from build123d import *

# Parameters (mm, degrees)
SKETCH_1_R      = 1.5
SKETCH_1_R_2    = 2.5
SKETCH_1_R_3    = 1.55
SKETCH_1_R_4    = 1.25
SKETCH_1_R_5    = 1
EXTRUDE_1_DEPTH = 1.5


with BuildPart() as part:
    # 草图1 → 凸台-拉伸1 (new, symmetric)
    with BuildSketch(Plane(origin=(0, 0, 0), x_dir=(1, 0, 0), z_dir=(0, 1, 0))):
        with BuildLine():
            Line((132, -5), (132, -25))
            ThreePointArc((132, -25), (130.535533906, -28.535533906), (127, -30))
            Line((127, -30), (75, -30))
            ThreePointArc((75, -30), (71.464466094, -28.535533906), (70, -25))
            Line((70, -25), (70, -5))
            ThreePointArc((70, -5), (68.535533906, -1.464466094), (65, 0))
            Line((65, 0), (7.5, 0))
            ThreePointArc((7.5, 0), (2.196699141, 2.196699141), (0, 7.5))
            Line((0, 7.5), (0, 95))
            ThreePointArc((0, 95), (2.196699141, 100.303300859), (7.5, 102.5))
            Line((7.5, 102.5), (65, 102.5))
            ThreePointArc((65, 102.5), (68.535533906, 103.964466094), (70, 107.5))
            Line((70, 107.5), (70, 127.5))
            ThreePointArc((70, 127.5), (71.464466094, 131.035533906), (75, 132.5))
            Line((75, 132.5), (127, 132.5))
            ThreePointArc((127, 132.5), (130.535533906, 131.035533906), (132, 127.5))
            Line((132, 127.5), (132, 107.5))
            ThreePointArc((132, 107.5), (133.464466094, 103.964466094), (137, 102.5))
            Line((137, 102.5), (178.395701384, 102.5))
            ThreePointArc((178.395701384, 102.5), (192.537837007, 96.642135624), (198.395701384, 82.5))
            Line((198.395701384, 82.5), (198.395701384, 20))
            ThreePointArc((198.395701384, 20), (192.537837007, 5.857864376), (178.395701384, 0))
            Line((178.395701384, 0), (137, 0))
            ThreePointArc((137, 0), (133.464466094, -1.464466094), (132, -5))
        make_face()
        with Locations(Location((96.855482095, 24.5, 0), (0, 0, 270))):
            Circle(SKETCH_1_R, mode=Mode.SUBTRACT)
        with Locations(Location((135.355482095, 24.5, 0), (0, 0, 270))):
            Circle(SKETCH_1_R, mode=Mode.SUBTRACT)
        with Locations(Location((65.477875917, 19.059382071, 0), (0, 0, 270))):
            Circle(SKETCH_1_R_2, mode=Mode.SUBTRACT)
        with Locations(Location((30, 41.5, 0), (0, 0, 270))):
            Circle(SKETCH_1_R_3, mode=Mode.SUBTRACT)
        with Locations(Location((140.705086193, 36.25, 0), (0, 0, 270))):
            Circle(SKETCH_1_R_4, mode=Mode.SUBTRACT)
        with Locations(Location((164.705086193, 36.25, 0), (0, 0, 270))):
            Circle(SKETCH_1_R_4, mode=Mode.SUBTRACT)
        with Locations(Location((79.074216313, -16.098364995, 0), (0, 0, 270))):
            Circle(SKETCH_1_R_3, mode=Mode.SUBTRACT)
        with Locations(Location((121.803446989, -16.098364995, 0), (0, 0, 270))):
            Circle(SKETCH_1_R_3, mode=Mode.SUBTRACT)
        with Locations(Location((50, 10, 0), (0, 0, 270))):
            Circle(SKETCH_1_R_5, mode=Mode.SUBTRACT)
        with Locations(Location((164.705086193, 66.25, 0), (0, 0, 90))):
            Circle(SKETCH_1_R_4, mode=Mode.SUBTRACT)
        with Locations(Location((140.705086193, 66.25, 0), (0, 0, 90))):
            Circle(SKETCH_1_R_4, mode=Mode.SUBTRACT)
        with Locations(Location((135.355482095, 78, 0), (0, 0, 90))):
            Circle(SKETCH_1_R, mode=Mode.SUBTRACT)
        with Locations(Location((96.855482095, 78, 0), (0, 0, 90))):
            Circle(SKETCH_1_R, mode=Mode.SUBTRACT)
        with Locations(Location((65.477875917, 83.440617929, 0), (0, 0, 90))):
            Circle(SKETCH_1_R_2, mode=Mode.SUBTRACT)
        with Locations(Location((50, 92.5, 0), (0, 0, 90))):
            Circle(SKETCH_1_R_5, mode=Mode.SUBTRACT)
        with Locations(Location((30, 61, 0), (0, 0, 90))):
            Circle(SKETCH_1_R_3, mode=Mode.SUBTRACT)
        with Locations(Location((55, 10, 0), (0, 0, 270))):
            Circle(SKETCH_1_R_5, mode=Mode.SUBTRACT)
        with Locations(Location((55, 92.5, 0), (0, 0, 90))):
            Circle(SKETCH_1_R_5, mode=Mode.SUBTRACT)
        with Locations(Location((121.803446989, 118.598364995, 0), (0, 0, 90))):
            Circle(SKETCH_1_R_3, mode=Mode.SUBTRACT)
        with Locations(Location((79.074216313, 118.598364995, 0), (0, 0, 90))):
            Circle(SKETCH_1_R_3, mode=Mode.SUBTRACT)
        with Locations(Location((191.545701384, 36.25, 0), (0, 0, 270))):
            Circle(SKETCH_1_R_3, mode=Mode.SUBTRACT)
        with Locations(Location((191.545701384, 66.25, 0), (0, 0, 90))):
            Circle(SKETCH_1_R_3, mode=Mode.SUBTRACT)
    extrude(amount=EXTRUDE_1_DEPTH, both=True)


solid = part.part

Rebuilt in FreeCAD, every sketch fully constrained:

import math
import FreeCAD as App
import Part
import Sketcher

doc = App.newDocument("Part")
params = doc.addObject("Spreadsheet::Sheet", "Params")
for row, (alias, value) in enumerate([
    ("sketch1_diameter", "3 mm"),
    ("sketch1_diameter2", "2 mm"),
    ("sketch1_diameter3", "5 mm"),
    ("sketch1_radius", "5 mm"),
    ("sketch1_radius2", "20 mm"),
    ("pad1_length", "3 mm"),
], start=1):
    params.set(f"A{row}", alias)
    params.set(f"B{row}", "=" + value)
    params.setAlias(f"B{row}", alias)

body = doc.addObject("PartDesign::Body", "Body")

sketch1 = body.newObject("Sketcher::SketchObject", "Sketch")
sketch1.AttachmentSupport = (doc.getObject("XZ_Plane"), [""])
sketch1.MapMode = "FlatFace"
sketch1.addGeometry(Part.LineSegment(App.Vector(132, 25, 0), App.Vector(132, 5, 0)), False)
sketch1.addGeometry(Part.ArcOfCircle(Part.Circle(App.Vector(137, 5, 0), App.Vector(0, 0, 1), 5), math.radians(180), math.radians(270)), False)
sketch1.addGeometry(Part.LineSegment(App.Vector(137, 0, 0), App.Vector(178.395701, 0, 0)), False)
sketch1.addGeometry(Part.ArcOfCircle(Part.Circle(App.Vector(178.395701, -20, 0), App.Vector(0, 0, 1), 20), math.radians(0), math.radians(90)), False)
sketch1.addGeometry(Part.LineSegment(App.Vector(198.395701, -20, 0), App.Vector(198.395701, -82.5, 0)), False)
sketch1.addGeometry(Part.ArcOfCircle(Part.Circle(App.Vector(178.395701, -82.5, 0), App.Vector(0, 0, 1), 20), math.radians(-90), math.radians(0)), False)
sketch1.addGeometry(Part.LineSegment(App.Vector(178.395701, -102.5, 0), App.Vector(137, -102.5, 0)), False)
sketch1.addGeometry(Part.ArcOfCircle(Part.Circle(App.Vector(137, -107.5, 0), App.Vector(0, 0, 1), 5), math.radians(90), math.radians(180)), False)
sketch1.addGeometry(Part.LineSegment(App.Vector(132, -107.5, 0), App.Vector(132, -127.5, 0)), False)
sketch1.addGeometry(Part.ArcOfCircle(Part.Circle(App.Vector(127, -127.5, 0), App.Vector(0, 0, 1), 5), math.radians(-90), math.radians(0)), False)
sketch1.addGeometry(Part.LineSegment(App.Vector(127, -132.5, 0), App.Vector(75, -132.5, 0)), False)
sketch1.addGeometry(Part.ArcOfCircle(Part.Circle(App.Vector(75, -127.5, 0), App.Vector(0, 0, 1), 5), math.radians(180), math.radians(270)), False)
sketch1.addGeometry(Part.LineSegment(App.Vector(70, -127.5, 0), App.Vector(70, -107.5, 0)), False)
sketch1.addGeometry(Part.ArcOfCircle(Part.Circle(App.Vector(65, -107.5, 0), App.Vector(0, 0, 1), 5), math.radians(0), math.radians(90)), False)
sketch1.addGeometry(Part.LineSegment(App.Vector(65, -102.5, 0), App.Vector(7.5, -102.5, 0)), False)
sketch1.addGeometry(Part.ArcOfCircle(Part.Circle(App.Vector(7.5, -95, 0), App.Vector(0, 0, 1), 7.5), math.radians(180), math.radians(270)), False)
sketch1.addGeometry(Part.LineSegment(App.Vector(0, -95, 0), App.Vector(0, -7.5, 0)), False)
sketch1.addGeometry(Part.ArcOfCircle(Part.Circle(App.Vector(7.5, -7.5, 0), App.Vector(0, 0, 1), 7.5), math.radians(90), math.radians(180)), False)
sketch1.addGeometry(Part.LineSegment(App.Vector(7.5, 0, 0), App.Vector(65, 0, 0)), False)
sketch1.addGeometry(Part.ArcOfCircle(Part.Circle(App.Vector(65, 5, 0), App.Vector(0, 0, 1), 5), math.radians(-90), math.radians(0)), False)
sketch1.addGeometry(Part.LineSegment(App.Vector(70, 5, 0), App.Vector(70, 25, 0)), False)
sketch1.addGeometry(Part.ArcOfCircle(Part.Circle(App.Vector(75, 25, 0), App.Vector(0, 0, 1), 5), math.radians(90), math.radians(180)), False)
sketch1.addGeometry(Part.LineSegment(App.Vector(75, 30, 0), App.Vector(127, 30, 0)), False)
sketch1.addGeometry(Part.ArcOfCircle(Part.Circle(App.Vector(127, 25, 0), App.Vector(0, 0, 1), 5), math.radians(0), math.radians(90)), False)
sketch1.addGeometry(Part.Circle(App.Vector(121.803447, 16.098365, 0), App.Vector(0, 0, 1), 1.55), False)
sketch1.addGeometry(Part.Circle(App.Vector(191.545701, -36.25, 0), App.Vector(0, 0, 1), 1.55), False)
sketch1.addGeometry(Part.Circle(App.Vector(164.705086, -36.25, 0), App.Vector(0, 0, 1), 1.25), False)
sketch1.addGeometry(Part.Circle(App.Vector(135.355482, -24.5, 0), App.Vector(0, 0, 1), 1.5), False)
sketch1.addGeometry(Part.Circle(App.Vector(140.705086, -36.25, 0), App.Vector(0, 0, 1), 1.25), False)
sketch1.addGeometry(Part.Circle(App.Vector(79.074216, 16.098365, 0), App.Vector(0, 0, 1), 1.55), False)
sketch1.addGeometry(Part.Circle(App.Vector(55, -10, 0), App.Vector(0, 0, 1), 1), False)
sketch1.addGeometry(Part.Circle(App.Vector(50, -10, 0), App.Vector(0, 0, 1), 1), False)
sketch1.addGeometry(Part.Circle(App.Vector(96.855482, -24.5, 0), App.Vector(0, 0, 1), 1.5), False)
sketch1.addGeometry(Part.Circle(App.Vector(65.477876, -19.059382, 0), App.Vector(0, 0, 1), 2.5), False)
sketch1.addGeometry(Part.Circle(App.Vector(30, -41.5, 0), App.Vector(0, 0, 1), 1.55), False)
sketch1.addGeometry(Part.Circle(App.Vector(191.545701, -66.25, 0), App.Vector(0, 0, 1), 1.55), False)
sketch1.addGeometry(Part.Circle(App.Vector(164.705086, -66.25, 0), App.Vector(0, 0, 1), 1.25), False)
sketch1.addGeometry(Part.Circle(App.Vector(140.705086, -66.25, 0), App.Vector(0, 0, 1), 1.25), False)
sketch1.addGeometry(Part.Circle(App.Vector(135.355482, -78, 0), App.Vector(0, 0, 1), 1.5), False)
sketch1.addGeometry(Part.Circle(App.Vector(121.803447, -118.598365, 0), App.Vector(0, 0, 1), 1.55), False)
sketch1.addGeometry(Part.Circle(App.Vector(96.855482, -78, 0), App.Vector(0, 0, 1), 1.5), False)
sketch1.addGeometry(Part.Circle(App.Vector(30, -61, 0), App.Vector(0, 0, 1), 1.55), False)
sketch1.addGeometry(Part.Circle(App.Vector(65.477876, -83.440618, 0), App.Vector(0, 0, 1), 2.5), False)
sketch1.addGeometry(Part.Circle(App.Vector(79.074216, -118.598365, 0), App.Vector(0, 0, 1), 1.55), False)
sketch1.addGeometry(Part.Circle(App.Vector(55, -92.5, 0), App.Vector(0, 0, 1), 1), False)
sketch1.addGeometry(Part.Circle(App.Vector(50, -92.5, 0), App.Vector(0, 0, 1), 1), False)
sketch1.addConstraint(Sketcher.Constraint("Tangent", 0, 2, 1, 1))
sketch1.addConstraint(Sketcher.Constraint("Tangent", 1, 2, 2, 1))
sketch1.addConstraint(Sketcher.Constraint("Tangent", 2, 2, 3, 2))
sketch1.addConstraint(Sketcher.Constraint("Tangent", 3, 1, 4, 1))
sketch1.addConstraint(Sketcher.Constraint("Tangent", 4, 2, 5, 2))
sketch1.addConstraint(Sketcher.Constraint("Tangent", 5, 1, 6, 1))
sketch1.addConstraint(Sketcher.Constraint("Tangent", 6, 2, 7, 1))
sketch1.addConstraint(Sketcher.Constraint("Tangent", 7, 2, 8, 1))
sketch1.addConstraint(Sketcher.Constraint("Tangent", 8, 2, 9, 2))
sketch1.addConstraint(Sketcher.Constraint("Tangent", 9, 1, 10, 1))
sketch1.addConstraint(Sketcher.Constraint("Tangent", 10, 2, 11, 2))
sketch1.addConstraint(Sketcher.Constraint("Tangent", 11, 1, 12, 1))
sketch1.addConstraint(Sketcher.Constraint("Tangent", 12, 2, 13, 1))
sketch1.addConstraint(Sketcher.Constraint("Tangent", 13, 2, 14, 1))
sketch1.addConstraint(Sketcher.Constraint("Tangent", 14, 2, 15, 2))
sketch1.addConstraint(Sketcher.Constraint("Tangent", 15, 1, 16, 1))
sketch1.addConstraint(Sketcher.Constraint("Tangent", 16, 2, 17, 2))
sketch1.addConstraint(Sketcher.Constraint("Tangent", 17, 1, 18, 1))
sketch1.addConstraint(Sketcher.Constraint("Tangent", 18, 2, 19, 1))
sketch1.addConstraint(Sketcher.Constraint("Tangent", 19, 2, 20, 1))
sketch1.addConstraint(Sketcher.Constraint("Tangent", 20, 2, 21, 2))
sketch1.addConstraint(Sketcher.Constraint("Tangent", 21, 1, 22, 1))
sketch1.addConstraint(Sketcher.Constraint("Tangent", 22, 2, 23, 2))
sketch1.addConstraint(Sketcher.Constraint("Tangent", 23, 1, 0, 1))
sketch1.addConstraint(Sketcher.Constraint("Vertical", 0))
sketch1.addConstraint(Sketcher.Constraint("Horizontal", 2))
sketch1.addConstraint(Sketcher.Constraint("Vertical", 4))
sketch1.addConstraint(Sketcher.Constraint("Horizontal", 6))
sketch1.addConstraint(Sketcher.Constraint("Vertical", 8))
sketch1.addConstraint(Sketcher.Constraint("Horizontal", 10))
sketch1.addConstraint(Sketcher.Constraint("Vertical", 12))
sketch1.addConstraint(Sketcher.Constraint("Horizontal", 14))
sketch1.addConstraint(Sketcher.Constraint("Vertical", 16))
sketch1.addConstraint(Sketcher.Constraint("Horizontal", 18))
sketch1.addConstraint(Sketcher.Constraint("Vertical", 20))
sketch1.addConstraint(Sketcher.Constraint("Horizontal", 22))
sketch1.addConstraint(Sketcher.Constraint("Equal", 3, 5))
sketch1.addConstraint(Sketcher.Constraint("Equal", 1, 7))
sketch1.addConstraint(Sketcher.Constraint("Equal", 7, 9))
sketch1.addConstraint(Sketcher.Constraint("Equal", 9, 11))
sketch1.addConstraint(Sketcher.Constraint("Equal", 11, 13))
sketch1.addConstraint(Sketcher.Constraint("Equal", 15, 17))
sketch1.addConstraint(Sketcher.Constraint("Equal", 13, 19))
sketch1.addConstraint(Sketcher.Constraint("Equal", 19, 21))
sketch1.addConstraint(Sketcher.Constraint("Equal", 21, 23))
sketch1.addConstraint(Sketcher.Constraint("Equal", 24, 25))
sketch1.addConstraint(Sketcher.Constraint("Equal", 26, 28))
sketch1.addConstraint(Sketcher.Constraint("Equal", 25, 29))
sketch1.addConstraint(Sketcher.Constraint("Equal", 30, 31))
sketch1.addConstraint(Sketcher.Constraint("Equal", 27, 32))
sketch1.addConstraint(Sketcher.Constraint("Equal", 29, 34))
sketch1.addConstraint(Sketcher.Constraint("Equal", 34, 35))
sketch1.addConstraint(Sketcher.Constraint("Equal", 28, 36))
sketch1.addConstraint(Sketcher.Constraint("Equal", 36, 37))
sketch1.addConstraint(Sketcher.Constraint("Equal", 32, 38))
sketch1.addConstraint(Sketcher.Constraint("Equal", 35, 39))
sketch1.addConstraint(Sketcher.Constraint("Equal", 38, 40))
sketch1.addConstraint(Sketcher.Constraint("Equal", 39, 41))
sketch1.addConstraint(Sketcher.Constraint("Equal", 33, 42))
sketch1.addConstraint(Sketcher.Constraint("Equal", 41, 43))
sketch1.addConstraint(Sketcher.Constraint("Equal", 31, 44))
sketch1.addConstraint(Sketcher.Constraint("Equal", 44, 45))
sketch1.addConstraint(Sketcher.Constraint("PointOnObject", 1, 2, -1))
sketch1.addConstraint(Sketcher.Constraint("PointOnObject", 15, 1, -2))
sketch1.addConstraint(Sketcher.Constraint("PointOnObject", 17, 1, -1))
sketch1.addConstraint(Sketcher.Constraint("Horizontal", 7, 3, 13, 3))
sketch1.addConstraint(Sketcher.Constraint("Horizontal", 25, 3, 26, 3))
sketch1.addConstraint(Sketcher.Constraint("Horizontal", 26, 3, 28, 3))
sketch1.addConstraint(Sketcher.Constraint("Horizontal", 24, 3, 29, 3))
sketch1.addConstraint(Sketcher.Constraint("Horizontal", 30, 3, 31, 3))
sketch1.addConstraint(Sketcher.Constraint("Horizontal", 27, 3, 32, 3))
sketch1.addConstraint(Sketcher.Constraint("Horizontal", 35, 3, 36, 3))
sketch1.addConstraint(Sketcher.Constraint("Horizontal", 36, 3, 37, 3))
sketch1.addConstraint(Sketcher.Constraint("Horizontal", 38, 3, 40, 3))
sketch1.addConstraint(Sketcher.Constraint("Horizontal", 39, 3, 43, 3))
sketch1.addConstraint(Sketcher.Constraint("Horizontal", 44, 3, 45, 3))
sketch1.addConstraint(Sketcher.Constraint("Vertical", 1, 3, 7, 3))
sketch1.addConstraint(Sketcher.Constraint("Vertical", 13, 3, 19, 3))
sketch1.addConstraint(Sketcher.Constraint("Vertical", 25, 3, 35, 3))
sketch1.addConstraint(Sketcher.Constraint("Vertical", 26, 3, 36, 3))
sketch1.addConstraint(Sketcher.Constraint("Vertical", 28, 3, 37, 3))
sketch1.addConstraint(Sketcher.Constraint("Vertical", 27, 3, 38, 3))
sketch1.addConstraint(Sketcher.Constraint("Vertical", 24, 3, 39, 3))
sketch1.addConstraint(Sketcher.Constraint("Vertical", 32, 3, 40, 3))
sketch1.addConstraint(Sketcher.Constraint("Vertical", 34, 3, 41, 3))
sketch1.addConstraint(Sketcher.Constraint("Vertical", 33, 3, 42, 3))
sketch1.addConstraint(Sketcher.Constraint("Vertical", 29, 3, 43, 3))
sketch1.addConstraint(Sketcher.Constraint("Vertical", 30, 3, 44, 3))
sketch1.addConstraint(Sketcher.Constraint("Vertical", 31, 3, 45, 3))
sketch1.addConstraint(Sketcher.Constraint("Equal", 0, 8))
sketch1.addConstraint(Sketcher.Constraint("Diameter", 27, 3.0))
sketch1.addConstraint(Sketcher.Constraint("Diameter", 30, 2.0))
sketch1.addConstraint(Sketcher.Constraint("Diameter", 33, 5.0))
sketch1.addConstraint(Sketcher.Constraint("Radius", 1, 5.0))
sketch1.addConstraint(Sketcher.Constraint("Radius", 3, 20.0))
sketch1.addConstraint(Sketcher.Constraint("Diameter", 24, 3.1))
sketch1.addConstraint(Sketcher.Constraint("Diameter", 26, 2.5))
sketch1.addConstraint(Sketcher.Constraint("Radius", 15, 7.5))
sketch1.addConstraint(Sketcher.Constraint("DistanceX", 10, 2, 10, 1, 52.0))
sketch1.addConstraint(Sketcher.Constraint("DistanceY", 0, 2, 0, 1, 20.0))
sketch1.addConstraint(Sketcher.Constraint("DistanceX", 14, 2, 14, 1, 57.5))
sketch1.addConstraint(Sketcher.Constraint("DistanceY", 4, 2, 4, 1, 62.5))
sketch1.addConstraint(Sketcher.Constraint("DistanceX", -1, 1, 30, 3, 55.0))
sketch1.addConstraint(Sketcher.Constraint("DistanceY", 30, 3, -1, 1, 10.0))
sketch1.addConstraint(Sketcher.Constraint("DistanceX", -1, 1, 31, 3, 50.0))
sketch1.addConstraint(Sketcher.Constraint("DistanceX", -1, 1, 34, 3, 30.0))
sketch1.addConstraint(Sketcher.Constraint("DistanceY", 38, 3, -1, 1, 78.0))
sketch1.addConstraint(Sketcher.Constraint("DistanceY", 41, 3, -1, 1, 61.0))
sketch1.addConstraint(Sketcher.Constraint("DistanceX", 28, 3, 26, 3, 24.0))
sketch1.addConstraint(Sketcher.Constraint("DistanceY", 34, 3, 17, 3, 34.0))
sketch1.addConstraint(Sketcher.Constraint("DistanceY", 35, 3, 25, 3, 30.0))
sketch1.addConstraint(Sketcher.Constraint("DistanceY", 13, 3, 44, 3, 15.0))
sketch1.addConstraint(Sketcher.Constraint("DistanceY", 27, 3, -1, 1, 24.5))
sketch1.addConstraint(Sketcher.Constraint("DistanceX", 32, 3, 27, 3, 38.5))
sketch1.addConstraint(Sketcher.Constraint("DistanceY", 25, 3, -1, 1, 36.25))
sketch1.addConstraint(Sketcher.Constraint("DistanceX", 3, 3, 25, 3, 13.15))
sketch1.addConstraint(Sketcher.Constraint("DistanceX", 2, 1, 2, 2, 41.395701))
sketch1.addConstraint(Sketcher.Constraint("DistanceX", 24, 3, 26, 3, 42.901639))
sketch1.addConstraint(Sketcher.Constraint("DistanceX", 27, 3, 3, 3, 43.040219))
sketch1.addConstraint(Sketcher.Constraint("DistanceX", 29, 3, 24, 3, 42.729231))
sketch1.addConstraint(Sketcher.Constraint("DistanceX", 33, 3, 29, 3, 13.59634))
sketch1.addConstraint(Sketcher.Constraint("DistanceX", -1, 1, 24, 3, 121.803447))
sketch1.addConstraint(Sketcher.Constraint("DistanceY", -1, 1, 24, 3, 16.098365))
sketch1.addConstraint(Sketcher.Constraint("DistanceY", 33, 3, -1, 1, 19.059382))
sketch1.addConstraint(Sketcher.Constraint("DistanceY", 39, 3, -1, 1, 118.598365))
sketch1.addConstraint(Sketcher.Constraint("DistanceY", 42, 3, -1, 1, 83.440618))
sketch1.setExpression("Constraints[90]", "Params.sketch1_diameter")
sketch1.setExpression("Constraints[91]", "Params.sketch1_diameter2")
sketch1.setExpression("Constraints[92]", "Params.sketch1_diameter3")
sketch1.setExpression("Constraints[93]", "Params.sketch1_radius")
sketch1.setExpression("Constraints[94]", "Params.sketch1_radius2")
pad1 = body.newObject("PartDesign::Pad", "Pad")
pad1.Profile = sketch1
pad1.setExpression("Length", "Params.pad1_length")
pad1.Midplane = True

doc.recompute()
